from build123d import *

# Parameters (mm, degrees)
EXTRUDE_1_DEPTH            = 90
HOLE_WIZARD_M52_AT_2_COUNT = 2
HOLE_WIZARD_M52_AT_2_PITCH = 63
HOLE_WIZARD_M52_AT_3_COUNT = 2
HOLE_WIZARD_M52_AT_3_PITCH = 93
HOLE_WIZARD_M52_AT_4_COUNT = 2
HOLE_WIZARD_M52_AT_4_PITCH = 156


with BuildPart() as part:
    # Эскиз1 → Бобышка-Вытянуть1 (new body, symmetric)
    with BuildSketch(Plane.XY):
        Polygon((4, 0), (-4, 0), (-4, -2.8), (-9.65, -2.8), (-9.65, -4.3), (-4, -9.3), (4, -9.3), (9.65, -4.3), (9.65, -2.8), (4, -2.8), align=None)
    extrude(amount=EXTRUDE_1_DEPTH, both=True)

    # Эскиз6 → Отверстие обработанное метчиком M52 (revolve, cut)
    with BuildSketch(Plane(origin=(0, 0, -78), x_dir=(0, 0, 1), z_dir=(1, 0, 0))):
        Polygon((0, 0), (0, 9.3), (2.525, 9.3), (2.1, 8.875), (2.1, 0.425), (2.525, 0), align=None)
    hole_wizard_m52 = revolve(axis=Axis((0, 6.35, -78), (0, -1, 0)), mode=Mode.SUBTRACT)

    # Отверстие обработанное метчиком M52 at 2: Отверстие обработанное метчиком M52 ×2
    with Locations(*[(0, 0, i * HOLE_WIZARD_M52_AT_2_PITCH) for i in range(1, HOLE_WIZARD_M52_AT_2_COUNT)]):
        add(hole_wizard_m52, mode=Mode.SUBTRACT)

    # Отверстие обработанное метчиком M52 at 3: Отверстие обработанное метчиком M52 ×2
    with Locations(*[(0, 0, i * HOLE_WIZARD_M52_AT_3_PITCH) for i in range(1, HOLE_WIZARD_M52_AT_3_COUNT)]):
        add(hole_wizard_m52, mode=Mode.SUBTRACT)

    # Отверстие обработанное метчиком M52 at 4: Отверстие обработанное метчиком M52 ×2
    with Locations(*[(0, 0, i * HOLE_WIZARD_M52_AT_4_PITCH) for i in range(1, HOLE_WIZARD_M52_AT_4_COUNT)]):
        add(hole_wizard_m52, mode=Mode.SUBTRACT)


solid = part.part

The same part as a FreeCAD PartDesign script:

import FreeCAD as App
import Part
import Sketcher

V = App.Vector
Q = App.Units.Quantity

doc = App.newDocument("Part")
body = doc.addObject("PartDesign::Body", "Body")

sketch1 = doc.addObject("Sketcher::SketchObject", "Sketch")
body.addObject(sketch1)
sketch1.AttachmentSupport = (doc.XY_Plane, [""])
sketch1.MapMode = "FlatFace"
sketch1.addGeometry([
    Part.LineSegment(V(4, 0, 0), V(-4, 0, 0)),
    Part.LineSegment(V(-4, 0, 0), V(-4, -2.8, 0)),
    Part.LineSegment(V(-4, -2.8, 0), V(-9.7, -2.8, 0)),
    Part.LineSegment(V(-9.7, -2.8, 0), V(-9.7, -4.3, 0)),
    Part.LineSegment(V(-9.7, -4.3, 0), V(-4, -9.3, 0)),
    Part.LineSegment(V(-4, -9.3, 0), V(4, -9.3, 0)),
    Part.LineSegment(V(4, -9.3, 0), V(9.7, -4.3, 0)),
    Part.LineSegment(V(9.7, -4.3, 0), V(9.7, -2.8, 0)),
    Part.LineSegment(V(9.7, -2.8, 0), V(4, -2.8, 0)),
    Part.LineSegment(V(4, -2.8, 0), V(4, 0, 0)),
], False)
sketch1.addConstraint([
    Sketcher.Constraint("Coincident", 0, 2, 1, 1),
    Sketcher.Constraint("Coincident", 1, 2, 2, 1),
    Sketcher.Constraint("Coincident", 2, 2, 3, 1),
    Sketcher.Constraint("Coincident", 3, 2, 4, 1),
    Sketcher.Constraint("Coincident", 4, 2, 5, 1),
    Sketcher.Constraint("Coincident", 5, 2, 6, 1),
    Sketcher.Constraint("Coincident", 6, 2, 7, 1),
    Sketcher.Constraint("Coincident", 7, 2, 8, 1),
    Sketcher.Constraint("Coincident", 8, 2, 9, 1),
    Sketcher.Constraint("Coincident", 9, 2, 0, 1),
    Sketcher.Constraint("Horizontal", 0),
    Sketcher.Constraint("Vertical", 1),
    Sketcher.Constraint("Horizontal", 2),
    Sketcher.Constraint("Vertical", 3),
    Sketcher.Constraint("Horizontal", 5),
    Sketcher.Constraint("Vertical", 7),
    Sketcher.Constraint("Horizontal", 8),
    Sketcher.Constraint("Vertical", 9),
    Sketcher.Constraint("Symmetric", 0, 2, 9, 2, -1, 1),
    Sketcher.Constraint("Symmetric", 3, 2, 6, 2, -2),
    Sketcher.Constraint("Horizontal", 2, 2, 7, 2),
    Sketcher.Constraint("Vertical", 1, 2, 4, 2),
    Sketcher.Constraint("Vertical", 5, 2, 8, 2),
    Sketcher.Constraint("DistanceX", 0, 2, 0, 1, Q("8 mm")),
    Sketcher.Constraint("DistanceY", 1, 2, 1, 1, Q("2.8 mm")),
    Sketcher.Constraint("DistanceY", 3, 2, 3, 1, Q("1.5 mm")),
    Sketcher.Constraint("DistanceY", 4, 2, 3, 2, Q("5 mm")),
    Sketcher.Constraint("DistanceX", 2, 2, 2, 1, Q("5.65 mm")),
])
pad1 = doc.addObject("PartDesign::Pad", "Pad")
body.addObject(pad1)
pad1.Profile = sketch1
pad1.Length = 180
pad1.Midplane = True

sketch2 = doc.addObject("Sketcher::SketchObject", "Sketch001")
body.addObject(sketch2)
sketch2.AttachmentSupport = (doc.YZ_Plane, [""])
sketch2.MapMode = "FlatFace"
sketch2.addGeometry([
    Part.LineSegment(V(-9.3, -78, 0), V(0, -78, 0)),
    Part.LineSegment(V(0, -78, 0), V(0, -75.5, 0)),
    Part.LineSegment(V(0, -75.5, 0), V(-0.4, -75.9, 0)),
    Part.LineSegment(V(-0.4, -75.9, 0), V(-8.9, -75.9, 0)),
    Part.LineSegment(V(-8.9, -75.9, 0), V(-9.3, -75.5, 0)),
    Part.LineSegment(V(-9.3, -75.5, 0), V(-9.3, -78, 0)),
], False)
sketch2.addGeometry(Part.LineSegment(V(0, -78, 0), V(-9.3, -78, 0)), True)
sketch2.addConstraint([
    Sketcher.Constraint("Coincident", 0, 2, 1, 1),
    Sketcher.Constraint("Coincident", 1, 2, 2, 1),
    Sketcher.Constraint("Coincident", 2, 2, 3, 1),
    Sketcher.Constraint("Coincident", 3, 2, 4, 1),
    Sketcher.Constraint("Coincident", 4, 2, 5, 1),
    Sketcher.Constraint("Coincident", 5, 2, 0, 1),
    Sketcher.Constraint("Horizontal", 0),
    Sketcher.Constraint("Vertical", 1),
    Sketcher.Constraint("Horizontal", 3),
    Sketcher.Constraint("Vertical", 5),
    Sketcher.Constraint("Horizontal", 6),
    Sketcher.Constraint("Coincident", 6, 1, 0, 2),
    Sketcher.Constraint("PointOnObject", 0, 2, -2),
    Sketcher.Constraint("Perpendicular", 2, 4),
    Sketcher.Constraint("Horizontal", 1, 2, 4, 2),
    Sketcher.Constraint("Vertical", 4, 2, 6, 2),
    Sketcher.Constraint("Equal", 2, 4),
    Sketcher.Constraint("DistanceX", 0, 1, 0, 2, Q("9.3 mm")),
    Sketcher.Constraint("DistanceY", 0, 2, -1, 1, Q("78 mm")),
    Sketcher.Constraint("DistanceX", 3, 2, 3, 1, Q("8.45 mm")),
    Sketcher.Constraint("DistanceY", 2, 2, -1, 1, Q("75.9 mm")),
])
groove = doc.addObject("PartDesign::Groove", "Groove")
body.addObject(groove)
groove.Profile = sketch2
groove.ReferenceAxis = (sketch2, ["Axis0"])
groove.Angle = 360
doc.recompute()

linearpattern = doc.addObject("PartDesign::LinearPattern", "LinearPattern")
body.addObject(linearpattern)
linearpattern.Originals = [groove]
linearpattern.Direction = (doc.Z_Axis, [""])
linearpattern.Mode = "offset"
linearpattern.Offset = 63
linearpattern.Occurrences = 2
body.Tip = linearpattern
doc.recompute()

linearpattern2 = doc.addObject("PartDesign::LinearPattern", "LinearPattern001")
body.addObject(linearpattern2)
linearpattern2.Originals = [groove]
linearpattern2.Direction = (doc.Z_Axis, [""])
linearpattern2.Mode = "offset"
linearpattern2.Offset = 93
linearpattern2.Occurrences = 2
body.Tip = linearpattern2
doc.recompute()

linearpattern3 = doc.addObject("PartDesign::LinearPattern", "LinearPattern002")
body.addObject(linearpattern3)
linearpattern3.Originals = [groove]
linearpattern3.Direction = (doc.Z_Axis, [""])
linearpattern3.Mode = "offset"
linearpattern3.Offset = 156
linearpattern3.Occurrences = 2
body.Tip = linearpattern3

doc.recompute()
